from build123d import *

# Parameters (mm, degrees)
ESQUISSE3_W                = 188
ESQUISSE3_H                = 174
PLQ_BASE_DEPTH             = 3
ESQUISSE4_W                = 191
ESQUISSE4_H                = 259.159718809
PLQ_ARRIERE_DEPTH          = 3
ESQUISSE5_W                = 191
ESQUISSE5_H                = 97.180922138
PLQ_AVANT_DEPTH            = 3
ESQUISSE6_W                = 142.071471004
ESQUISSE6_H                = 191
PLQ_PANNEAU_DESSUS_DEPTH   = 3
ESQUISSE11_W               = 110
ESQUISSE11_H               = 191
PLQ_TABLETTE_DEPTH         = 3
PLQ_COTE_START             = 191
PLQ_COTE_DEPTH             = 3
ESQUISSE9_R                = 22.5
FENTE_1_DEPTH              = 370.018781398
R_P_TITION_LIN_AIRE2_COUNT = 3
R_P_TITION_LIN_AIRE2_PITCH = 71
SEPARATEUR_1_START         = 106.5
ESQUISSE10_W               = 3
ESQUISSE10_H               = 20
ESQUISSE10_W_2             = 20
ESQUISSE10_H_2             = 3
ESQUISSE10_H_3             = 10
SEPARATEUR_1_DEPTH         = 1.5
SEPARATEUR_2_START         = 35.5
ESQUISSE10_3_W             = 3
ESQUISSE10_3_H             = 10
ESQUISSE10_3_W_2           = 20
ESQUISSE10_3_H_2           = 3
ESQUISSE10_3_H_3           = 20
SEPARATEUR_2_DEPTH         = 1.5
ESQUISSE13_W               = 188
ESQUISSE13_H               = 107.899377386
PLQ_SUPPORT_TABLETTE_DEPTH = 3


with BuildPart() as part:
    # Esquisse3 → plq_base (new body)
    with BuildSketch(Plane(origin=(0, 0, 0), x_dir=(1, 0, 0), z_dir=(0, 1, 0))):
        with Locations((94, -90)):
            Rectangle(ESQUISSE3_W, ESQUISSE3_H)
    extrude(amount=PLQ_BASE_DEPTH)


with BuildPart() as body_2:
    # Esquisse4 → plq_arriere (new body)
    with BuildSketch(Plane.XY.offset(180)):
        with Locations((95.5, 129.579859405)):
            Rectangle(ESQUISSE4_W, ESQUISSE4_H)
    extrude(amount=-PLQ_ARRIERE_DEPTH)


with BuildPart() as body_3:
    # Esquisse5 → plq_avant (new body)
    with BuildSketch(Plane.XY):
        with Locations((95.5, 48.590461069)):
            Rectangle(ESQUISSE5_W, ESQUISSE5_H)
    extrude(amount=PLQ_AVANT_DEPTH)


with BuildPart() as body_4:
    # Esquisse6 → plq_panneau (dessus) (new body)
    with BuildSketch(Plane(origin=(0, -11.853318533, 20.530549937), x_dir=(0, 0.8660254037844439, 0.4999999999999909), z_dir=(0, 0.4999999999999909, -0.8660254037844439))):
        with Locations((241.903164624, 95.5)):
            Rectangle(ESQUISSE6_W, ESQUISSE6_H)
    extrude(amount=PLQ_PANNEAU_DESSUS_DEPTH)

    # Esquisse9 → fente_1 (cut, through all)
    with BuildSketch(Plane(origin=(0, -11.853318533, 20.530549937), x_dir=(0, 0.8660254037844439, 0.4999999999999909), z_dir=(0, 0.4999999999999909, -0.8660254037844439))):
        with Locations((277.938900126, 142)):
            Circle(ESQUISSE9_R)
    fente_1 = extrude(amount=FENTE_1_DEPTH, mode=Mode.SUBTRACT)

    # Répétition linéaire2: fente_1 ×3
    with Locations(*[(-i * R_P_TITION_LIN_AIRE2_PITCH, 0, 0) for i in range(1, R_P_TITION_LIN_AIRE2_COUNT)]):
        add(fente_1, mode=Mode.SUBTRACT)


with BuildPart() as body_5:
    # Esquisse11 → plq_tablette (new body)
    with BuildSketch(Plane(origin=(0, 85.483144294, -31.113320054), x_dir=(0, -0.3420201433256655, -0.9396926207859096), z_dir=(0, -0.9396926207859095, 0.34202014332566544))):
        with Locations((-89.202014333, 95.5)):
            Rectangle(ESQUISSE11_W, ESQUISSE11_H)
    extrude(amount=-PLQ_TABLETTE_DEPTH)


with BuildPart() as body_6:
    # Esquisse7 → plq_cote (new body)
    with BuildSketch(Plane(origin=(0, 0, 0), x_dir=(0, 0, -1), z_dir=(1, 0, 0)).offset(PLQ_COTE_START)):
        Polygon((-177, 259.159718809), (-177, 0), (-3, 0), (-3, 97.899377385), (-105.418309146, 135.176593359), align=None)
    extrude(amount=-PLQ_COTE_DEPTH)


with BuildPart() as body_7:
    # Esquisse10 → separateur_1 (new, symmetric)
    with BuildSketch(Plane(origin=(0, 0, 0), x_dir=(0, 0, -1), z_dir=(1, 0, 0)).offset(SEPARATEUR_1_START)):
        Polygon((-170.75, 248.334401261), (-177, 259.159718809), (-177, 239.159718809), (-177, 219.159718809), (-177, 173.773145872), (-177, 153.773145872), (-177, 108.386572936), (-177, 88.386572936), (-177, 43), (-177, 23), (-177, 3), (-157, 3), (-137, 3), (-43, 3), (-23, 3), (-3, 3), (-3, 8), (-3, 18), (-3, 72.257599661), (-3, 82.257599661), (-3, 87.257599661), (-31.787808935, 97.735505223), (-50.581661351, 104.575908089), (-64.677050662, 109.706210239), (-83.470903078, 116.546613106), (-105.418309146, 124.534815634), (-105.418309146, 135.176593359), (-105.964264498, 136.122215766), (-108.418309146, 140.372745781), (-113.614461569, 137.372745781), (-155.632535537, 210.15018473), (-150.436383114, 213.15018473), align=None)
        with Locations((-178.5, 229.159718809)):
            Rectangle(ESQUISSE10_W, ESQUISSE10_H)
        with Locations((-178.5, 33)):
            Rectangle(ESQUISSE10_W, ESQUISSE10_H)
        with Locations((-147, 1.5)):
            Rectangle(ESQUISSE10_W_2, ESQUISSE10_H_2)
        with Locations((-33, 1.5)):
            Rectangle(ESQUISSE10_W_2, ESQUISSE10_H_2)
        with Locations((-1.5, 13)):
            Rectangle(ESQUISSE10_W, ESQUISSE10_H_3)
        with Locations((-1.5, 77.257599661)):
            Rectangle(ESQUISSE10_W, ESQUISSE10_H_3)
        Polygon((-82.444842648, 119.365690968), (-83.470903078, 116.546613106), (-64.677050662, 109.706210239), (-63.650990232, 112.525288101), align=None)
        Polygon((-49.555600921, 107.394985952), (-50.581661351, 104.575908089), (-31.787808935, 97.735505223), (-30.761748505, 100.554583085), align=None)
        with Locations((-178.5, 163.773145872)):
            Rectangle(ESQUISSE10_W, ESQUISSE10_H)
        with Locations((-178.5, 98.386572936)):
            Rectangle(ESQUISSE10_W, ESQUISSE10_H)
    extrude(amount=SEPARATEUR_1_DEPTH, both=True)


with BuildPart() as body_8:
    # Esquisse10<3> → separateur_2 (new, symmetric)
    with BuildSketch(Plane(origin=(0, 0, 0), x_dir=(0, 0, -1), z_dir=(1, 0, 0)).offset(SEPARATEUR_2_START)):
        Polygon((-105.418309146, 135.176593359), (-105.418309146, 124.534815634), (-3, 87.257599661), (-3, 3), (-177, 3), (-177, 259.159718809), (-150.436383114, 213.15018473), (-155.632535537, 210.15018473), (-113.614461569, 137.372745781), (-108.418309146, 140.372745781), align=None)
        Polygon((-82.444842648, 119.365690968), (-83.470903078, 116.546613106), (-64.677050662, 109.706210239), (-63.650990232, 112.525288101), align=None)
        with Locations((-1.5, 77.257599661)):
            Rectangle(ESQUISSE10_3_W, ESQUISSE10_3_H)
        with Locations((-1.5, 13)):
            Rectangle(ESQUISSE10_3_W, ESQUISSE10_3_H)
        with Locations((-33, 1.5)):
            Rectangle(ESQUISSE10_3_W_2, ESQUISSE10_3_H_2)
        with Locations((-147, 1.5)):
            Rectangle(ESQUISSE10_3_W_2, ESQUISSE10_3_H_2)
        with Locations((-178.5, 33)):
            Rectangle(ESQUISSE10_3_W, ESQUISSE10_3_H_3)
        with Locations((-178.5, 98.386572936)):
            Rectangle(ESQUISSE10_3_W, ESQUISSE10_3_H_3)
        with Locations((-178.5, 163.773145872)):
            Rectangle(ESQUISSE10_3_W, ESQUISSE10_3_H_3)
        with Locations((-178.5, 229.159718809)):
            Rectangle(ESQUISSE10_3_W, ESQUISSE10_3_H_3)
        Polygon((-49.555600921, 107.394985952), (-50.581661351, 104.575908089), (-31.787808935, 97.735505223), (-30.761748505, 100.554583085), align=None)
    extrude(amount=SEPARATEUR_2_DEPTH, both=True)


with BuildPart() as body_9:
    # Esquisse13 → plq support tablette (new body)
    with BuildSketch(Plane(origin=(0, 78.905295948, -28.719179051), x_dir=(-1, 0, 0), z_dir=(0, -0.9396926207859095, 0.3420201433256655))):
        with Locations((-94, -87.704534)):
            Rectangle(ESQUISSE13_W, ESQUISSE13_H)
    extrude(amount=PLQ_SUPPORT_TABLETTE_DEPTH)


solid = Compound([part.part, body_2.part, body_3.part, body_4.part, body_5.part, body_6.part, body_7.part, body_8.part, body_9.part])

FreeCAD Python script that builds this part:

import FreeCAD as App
import Part
import Sketcher

V = App.Vector
Q = App.Units.Quantity


def add_polygon(sketch, points):
    """Adds a closed chain of lines whose ends are joined by coincident constraints."""
    first, n = sketch.GeometryCount, len(points)
    for a, b in zip(points, points[1:] + points[:1]):
        sketch.addGeometry(Part.LineSegment(App.Vector(*a, 0), App.Vector(*b, 0)), False)
    for i in range(n):
        sketch.addConstraint(Sketcher.Constraint("Coincident", first + i, 2, first + (i + 1) % n, 1))

doc = App.newDocument("Part")
body = doc.addObject("PartDesign::Body", "Body")

sketch1 = body.newObject("Sketcher::SketchObject", "Sketch")
sketch1.AttachmentSupport = (doc.getObject("XZ_Plane"), [""])
sketch1.MapMode = "FlatFace"
add_polygon(sketch1, [(0, 3), (0, 177), (188, 177), (188, 3)])
sketch1.addConstraint([
    Sketcher.Constraint("Vertical", 0),
    Sketcher.Constraint("Horizontal", 1),
    Sketcher.Constraint("Vertical", 2),
    Sketcher.Constraint("Horizontal", 3),
    Sketcher.Constraint("PointOnObject", 0, 2, -2),
    Sketcher.Constraint("DistanceX", 1, 1, 1, 2, 188.0),
    Sketcher.Constraint("DistanceY", 0, 1, 0, 2, 174.0),
    Sketcher.Constraint("DistanceY", -1, 1, 0, 2, 177.0),
])
pad1 = body.newObject("PartDesign::Pad", "Pad")
pad1.Profile = sketch1
pad1.Length = 3
pad1.Reversed = True
body2 = doc.addObject("PartDesign::Body", "Body001")

sketch2 = body2.newObject("Sketcher::SketchObject", "Sketch001")
sketch2.AttachmentSupport = (doc.getObject("XY_Plane001"), [""])
sketch2.MapMode = "FlatFace"
sketch2.AttachmentOffset = App.Placement(V(0, 0, 180), App.Rotation())
add_polygon(sketch2, [(0, 259.159719), (0, 0), (191, 0), (191, 259.159719)])
sketch2.addConstraint([
    Sketcher.Constraint("Vertical", 0),
    Sketcher.Constraint("Horizontal", 1),
    Sketcher.Constraint("Vertical", 2),
    Sketcher.Constraint("Horizontal", 3),
    Sketcher.Constraint("Coincident", 0, 2, -1, 1),
    Sketcher.Constraint("DistanceX", 1, 1, 1, 2, 191.0),
    Sketcher.Constraint("DistanceY", 0, 2, 0, 1, 259.159719),
])
pad2 = body2.newObject("PartDesign::Pad", "Pad001")
pad2.Profile = sketch2
pad2.Length = 3
pad2.Reversed = True
body3 = doc.addObject("PartDesign::Body", "Body002")

sketch3 = body3.newObject("Sketcher::SketchObject", "Sketch002")
sketch3.AttachmentSupport = (doc.getObject("XY_Plane002"), [""])
sketch3.MapMode = "FlatFace"
add_polygon(sketch3, [(0, 97.180922), (0, 0), (191, 0), (191, 97.180922)])
sketch3.addConstraint([
    Sketcher.Constraint("Vertical", 0),
    Sketcher.Constraint("Horizontal", 1),
    Sketcher.Constraint("Vertical", 2),
    Sketcher.Constraint("Horizontal", 3),
    Sketcher.Constraint("Coincident", 0, 2, -1, 1),
    Sketcher.Constraint("DistanceX", 1, 1, 1, 2, 191.0),
    Sketcher.Constraint("DistanceY", 0, 2, 0, 1, 97.180922),
])
pad3 = body3.newObject("PartDesign::Pad", "Pad002")
pad3.Profile = sketch3
pad3.Length = 3
body4 = doc.addObject("PartDesign::Body", "Body003")

sketch4 = body4.newObject("Sketcher::SketchObject", "Sketch003")
sketch4.Placement = App.Placement(V(0, -11.853319, 20.53055), App.Rotation(V(0, 0.866025404, 0.5), V(1, 0, 0), V(0, 0.5, -0.866025404), "ZXY"))
add_polygon(sketch4, [(170.867429, 191), (170.867429, 0), (312.9389, 0), (312.9389, 191)])
sketch4.addConstraint([
    Sketcher.Constraint("Vertical", 0),
    Sketcher.Constraint("Horizontal", 1),
    Sketcher.Constraint("Vertical", 2),
    Sketcher.Constraint("Horizontal", 3),
    Sketcher.Constraint("PointOnObject", 0, 2, -1),
    Sketcher.Constraint("DistanceY", 0, 2, 0, 1, 191.0),
    Sketcher.Constraint("DistanceX", 1, 1, 1, 2, 142.071471),
    Sketcher.Constraint("DistanceX", -1, 1, 1, 2, 312.9389),
])
pad4 = body4.newObject("PartDesign::Pad", "Pad003")
pad4.Profile = sketch4
pad4.Length = 3

sketch5 = body4.newObject("Sketcher::SketchObject", "Sketch004")
sketch5.Placement = App.Placement(V(0, -11.853319, 20.53055), App.Rotation(V(0, 0.866025404, 0.5), V(1, 0, 0), V(0, 0.5, -0.866025404), "ZXY"))
sketch5.addGeometry(Part.Circle(V(277.9389, 142, 0), V(0, 0, 1), 22.5), False)
sketch5.addConstraint([
    Sketcher.Constraint("Diameter", 0, 45.0),
    Sketcher.Constraint("DistanceY", -1, 1, 0, 3, 142.0),
    Sketcher.Constraint("DistanceX", -1, 1, 0, 3, 277.9389),
])
pocket1 = body4.newObject("PartDesign::Pocket", "Pocket")
pocket1.Profile = sketch5
pocket1.Type = "ThroughAll"
pocket1.Reversed = True
doc.recompute()

linearpattern = body4.newObject("PartDesign::LinearPattern", "LinearPattern")
linearpattern.Originals = [pocket1]
linearpattern.Direction = (doc.getObject("X_Axis003"), [""])
linearpattern.Mode = "offset"
linearpattern.Offset = 71
linearpattern.Occurrences = 3
linearpattern.Reversed = True
body4.Tip = linearpattern
body5 = doc.addObject("PartDesign::Body", "Body004")

sketch6 = body5.newObject("Sketcher::SketchObject", "Sketch005")
sketch6.Placement = App.Placement(V(0, 85.483144, -31.11332), App.Rotation(V(0, -0.342020143, -0.939692621), V(1, 0, 0), V(0, -0.939692621, 0.342020143), "ZXY"))
add_polygon(sketch6, [(-144.202014, 191), (-144.202014, 0), (-34.202014, 0), (-34.202014, 191)])
sketch6.addConstraint([
    Sketcher.Constraint("Vertical", 0),
    Sketcher.Constraint("Horizontal", 1),
    Sketcher.Constraint("Vertical", 2),
    Sketcher.Constraint("Horizontal", 3),
    Sketcher.Constraint("PointOnObject", 0, 2, -1),
    Sketcher.Constraint("DistanceX", 1, 1, 1, 2, 110.0),
    Sketcher.Constraint("DistanceY", 0, 2, 0, 1, 191.0),
    Sketcher.Constraint("DistanceX", 0, 2, -1, 1, 144.202014),
])
pad5 = body5.newObject("PartDesign::Pad", "Pad004")
pad5.Profile = sketch6
pad5.Length = 3
pad5.Reversed = True
body6 = doc.addObject("PartDesign::Body", "Body005")

sketch7 = body6.newObject("Sketcher::SketchObject", "Sketch006")
sketch7.AttachmentSupport = (doc.getObject("YZ_Plane005"), [""])
sketch7.MapMode = "FlatFace"
sketch7.AttachmentOffset = App.Placement(V(0, 0, 191), App.Rotation())
add_polygon(sketch7, [(259.159719, 177), (0, 177), (0, 3), (97.899377, 3), (135.176593, 105.418309)])
sketch7.addConstraint([
    Sketcher.Constraint("Horizontal", 0),
    Sketcher.Constraint("Vertical", 1),
    Sketcher.Constraint("Horizontal", 2),
    Sketcher.Constraint("PointOnObject", 0, 2, -2),
    Sketcher.Constraint("DistanceY", 1, 2, 1, 1, 174.0),
    Sketcher.Constraint("Angle", 3, Q("70 deg")),
    Sketcher.Constraint("Angle", 4, Q("30 deg")),
    Sketcher.Constraint("DistanceY", -1, 1, 0, 2, 177.0),
    Sketcher.Constraint("DistanceX", 0, 2, 0, 1, 259.159719),
    Sketcher.Constraint("Distance", 3, 108.991288),
])
pad6 = body6.newObject("PartDesign::Pad", "Pad005")
pad6.Profile = sketch7
pad6.Length = 3
pad6.Reversed = True
body7 = doc.addObject("PartDesign::Body", "Body006")

sketch8 = body7.newObject("Sketcher::SketchObject", "Sketch007")
sketch8.AttachmentSupport = (doc.getObject("YZ_Plane006"), [""])
sketch8.MapMode = "FlatFace"
sketch8.AttachmentOffset = App.Placement(V(0, 0, 106.5), App.Rotation())
add_polygon(sketch8, [(248.334401, 170.75), (259.159719, 177), (239.159719, 177), (239.159719, 180), (219.159719, 180), (219.159719, 177), (173.773146, 177), (173.773146, 180), (153.773146, 180), (153.773146, 177), (108.386573, 177), (108.386573, 180), (88.386573, 180), (88.386573, 177), (43, 177), (43, 180), (23, 180), (23, 177), (3, 177), (3, 157), (0, 157), (0, 137), (3, 137), (3, 43), (0, 43), (0, 23), (3, 23), (3, 3), (8, 3), (8, 0), (18, 0), (18, 3), (72.2576, 3), (72.2576, 0), (82.2576, 0), (82.2576, 3), (87.2576, 3), (97.735505, 31.787809), (100.554583, 30.761749), (107.394986, 49.555601), (104.575908, 50.581661), (109.70621, 64.677051), (112.525288, 63.65099), (119.365691, 82.444843), (116.546613, 83.470903), (124.534816, 105.418309), (135.176593, 105.418309), (136.122216, 105.964264), (140.372746, 108.418309), (137.372746, 113.614462), (210.150185, 155.632536), (213.150185, 150.436383)])
sketch8.addConstraint([
    Sketcher.Constraint("Horizontal", 1),
    Sketcher.Constraint("Vertical", 2),
    Sketcher.Constraint("Horizontal", 3),
    Sketcher.Constraint("Vertical", 4),
    Sketcher.Constraint("Horizontal", 5),
    Sketcher.Constraint("Vertical", 6),
    Sketcher.Constraint("Horizontal", 7),
    Sketcher.Constraint("Vertical", 8),
    Sketcher.Constraint("Horizontal", 9),
    Sketcher.Constraint("Vertical", 10),
    Sketcher.Constraint("Horizontal", 11),
    Sketcher.Constraint("Vertical", 12),
    Sketcher.Constraint("Horizontal", 13),
    Sketcher.Constraint("Vertical", 14),
    Sketcher.Constraint("Horizontal", 15),
    Sketcher.Constraint("Vertical", 16),
    Sketcher.Constraint("Horizontal", 17),
    Sketcher.Constraint("Vertical", 18),
    Sketcher.Constraint("Horizontal", 19),
    Sketcher.Constraint("Vertical", 20),
    Sketcher.Constraint("Horizontal", 21),
    Sketcher.Constraint("Vertical", 22),
    Sketcher.Constraint("Horizontal", 23),
    Sketcher.Constraint("Vertical", 24),
    Sketcher.Constraint("Horizontal", 25),
    Sketcher.Constraint("Vertical", 26),
    Sketcher.Constraint("Horizontal", 27),
    Sketcher.Constraint("Vertical", 28),
    Sketcher.Constraint("Horizontal", 29),
    Sketcher.Constraint("Vertical", 30),
    Sketcher.Constraint("Horizontal", 31),
    Sketcher.Constraint("Vertical", 32),
    Sketcher.Constraint("Horizontal", 33),
    Sketcher.Constraint("Vertical", 34),
    Sketcher.Constraint("Horizontal", 35),
    Sketcher.Constraint("Horizontal", 45),
    Sketcher.Constraint("PointOnObject", 19, 2, -2),
    Sketcher.Constraint("PointOnObject", 23, 2, -2),
    Sketcher.Constraint("PointOnObject", 28, 2, -1),
    Sketcher.Constraint("PointOnObject", 32, 2, -1),
    Sketcher.Constraint("Perpendicular", 36, 37),
    Sketcher.Constraint("Perpendicular", 37, 38),
    Sketcher.Constraint("Perpendicular", 38, 39),
    Sketcher.Constraint("Perpendicular", 39, 40),
    Sketcher.Constraint("Perpendicular", 40, 41),
    Sketcher.Constraint("Perpendicular", 41, 42),
    Sketcher.Constraint("Perpendicular", 42, 43),
    Sketcher.Constraint("Perpendicular", 43, 44),
    Sketcher.Constraint("Parallel", 0, 46),
    Sketcher.Constraint("Parallel", 46, 47),
    Sketcher.Constraint("Perpendicular", 47, 48),
    Sketcher.Constraint("Perpendicular", 48, 49),
    Sketcher.Constraint("Perpendicular", 49, 50),
    Sketcher.Constraint("Perpendicular", 50, 51),
    Sketcher.Constraint("Horizontal", 1, 2, 4, 2),
    Sketcher.Constraint("Horizontal", 3, 2, 6, 2),
    Sketcher.Constraint("Horizontal", 5, 2, 8, 2),
    Sketcher.Constraint("Horizontal", 7, 2, 10, 2),
    Sketcher.Constraint("Horizontal", 9, 2, 12, 2),
    Sketcher.Constraint("Horizontal", 11, 2, 14, 2),
    Sketcher.Constraint("Horizontal", 13, 2, 16, 2),
    Sketcher.Constraint("Horizontal", 27, 2, 30, 2),
    Sketcher.Constraint("Horizontal", 31, 2, 34, 2),
    Sketcher.Constraint("Vertical", 18, 2, 21, 2),
    Sketcher.Constraint("Vertical", 22, 2, 25, 2),
    Sketcher.Constraint("Equal", 1, 3),
    Sketcher.Constraint("Equal", 3, 7),
    Sketcher.Constraint("Equal", 5, 9),
    Sketcher.Constraint("Equal", 7, 11),
    Sketcher.Constraint("Equal", 9, 13),
    Sketcher.Constraint("Equal", 11, 15),
    Sketcher.Constraint("Equal", 15, 17),
    Sketcher.Constraint("Equal", 29, 33),
    Sketcher.Constraint("Equal", 27, 35),
    Sketcher.Constraint("Equal", 25, 2),
    Sketcher.Constraint("Equal", 17, 18),
    Sketcher.Constraint("Equal", 18, 20),
    Sketcher.Constraint("Equal", 20, 24),
    Sketcher.Constraint("Equal", 24, 26),
    Sketcher.Constraint("Equal", 16, 28),
    Sketcher.Constraint("Equal", 37, 39),
    Sketcher.Constraint("Equal", 39, 41),
    Sketcher.Constraint("Equal", 38, 42),
    Sketcher.Constraint("Equal", 41, 43),
    Sketcher.Constraint("Equal", 48, 50),
    Sketcher.Constraint("DistanceX", 1, 2, 1, 1, 20.0),
    Sketcher.Constraint("DistanceX", 19, 2, 19, 1, 3.0),
    Sketcher.Constraint("DistanceX", 27, 1, 27, 2, 5.0),
    Sketcher.Constraint("DistanceX", 29, 1, 29, 2, 10.0),
    Sketcher.Constraint("DistanceY", 22, 2, 22, 1, 94.0),
    Sketcher.Constraint("Angle", 0, Q("30 deg")),
    Sketcher.Constraint("Angle", 36, Q("70 deg")),
    Sketcher.Constraint("Distance", 37, 3.0),
    Sketcher.Constraint("Distance", 38, 20.0),
    Sketcher.Constraint("Distance", 40, 15.0),
    Sketcher.Constraint("Distance", 48, 6.0),
    Sketcher.Constraint("DistanceY", 45, 2, 47, 2, 3.0),
    Sketcher.Constraint("Distance", 0, 12.5),
    Sketcher.Constraint("DistanceX", 31, 1, 31, 2, 54.2576),
    Sketcher.Constraint("DistanceY", -1, 1, 38, 2, 49.555601),
    Sketcher.Constraint("DistanceX", -1, 1, 51, 2, 248.334401),
    Sketcher.Constraint("DistanceX", 44, 2, 46, 2, 11.5874),
    Sketcher.Constraint("Distance", 44, 23.355942),
    Sketcher.Constraint("DistanceX", 5, 2, 49, 2, 36.377039),
])
pad7 = body7.newObject("PartDesign::Pad", "Pad006")
pad7.Profile = sketch8
pad7.Length = 3
pad7.Midplane = True
body8 = doc.addObject("PartDesign::Body", "Body007")

sketch9 = body8.newObject("Sketcher::SketchObject", "Sketch008")
sketch9.AttachmentSupport = (doc.getObject("YZ_Plane007"), [""])
sketch9.MapMode = "FlatFace"
sketch9.AttachmentOffset = App.Placement(V(0, 0, 35.5), App.Rotation())
add_polygon(sketch9, [(124.534816, 105.418309), (135.176593, 105.418309), (140.372746, 108.418309), (137.372746, 113.614462), (210.150185, 155.632536), (213.150185, 150.436383), (259.159719, 177), (239.159719, 177), (239.159719, 180), (219.159719, 180), (219.159719, 177), (173.773146, 177), (173.773146, 180), (153.773146, 180), (153.773146, 177), (108.386573, 177), (108.386573, 180), (88.386573, 180), (88.386573, 177), (43, 177), (43, 180), (23, 180), (23, 177), (3, 177), (3, 157), (0, 157), (0, 137), (3, 137), (3, 43), (0, 43), (0, 23), (3, 23), (3, 3), (8, 3), (8, 0), (18, 0), (18, 3), (72.2576, 3), (72.2576, 0), (82.2576, 0), (82.2576, 3), (87.2576, 3), (97.735505, 31.787809), (100.554583, 30.761749), (107.394986, 49.555601), (104.575908, 50.581661), (109.70621, 64.677051), (112.525288, 63.65099), (119.365691, 82.444843), (116.546613, 83.470903)])
sketch9.addConstraint([
    Sketcher.Constraint("Horizontal", 0),
    Sketcher.Constraint("Horizontal", 6),
    Sketcher.Constraint("Vertical", 7),
    Sketcher.Constraint("Horizontal", 8),
    Sketcher.Constraint("Vertical", 9),
    Sketcher.Constraint("Horizontal", 10),
    Sketcher.Constraint("Vertical", 11),
    Sketcher.Constraint("Horizontal", 12),
    Sketcher.Constraint("Vertical", 13),
    Sketcher.Constraint("Horizontal", 14),
    Sketcher.Constraint("Vertical", 15),
    Sketcher.Constraint("Horizontal", 16),
    Sketcher.Constraint("Vertical", 17),
    Sketcher.Constraint("Horizontal", 18),
    Sketcher.Constraint("Vertical", 19),
    Sketcher.Constraint("Horizontal", 20),
    Sketcher.Constraint("Vertical", 21),
    Sketcher.Constraint("Horizontal", 22),
    Sketcher.Constraint("Vertical", 23),
    Sketcher.Constraint("Horizontal", 24),
    Sketcher.Constraint("Vertical", 25),
    Sketcher.Constraint("Horizontal", 26),
    Sketcher.Constraint("Vertical", 27),
    Sketcher.Constraint("Horizontal", 28),
    Sketcher.Constraint("Vertical", 29),
    Sketcher.Constraint("Horizontal", 30),
    Sketcher.Constraint("Vertical", 31),
    Sketcher.Constraint("Horizontal", 32),
    Sketcher.Constraint("Vertical", 33),
    Sketcher.Constraint("Horizontal", 34),
    Sketcher.Constraint("Vertical", 35),
    Sketcher.Constraint("Horizontal", 36),
    Sketcher.Constraint("Vertical", 37),
    Sketcher.Constraint("Horizontal", 38),
    Sketcher.Constraint("Vertical", 39),
    Sketcher.Constraint("Horizontal", 40),
    Sketcher.Constraint("PointOnObject", 24, 2, -2),
    Sketcher.Constraint("PointOnObject", 28, 2, -2),
    Sketcher.Constraint("PointOnObject", 33, 2, -1),
    Sketcher.Constraint("PointOnObject", 37, 2, -1),
    Sketcher.Constraint("Perpendicular", 1, 2),
    Sketcher.Constraint("Perpendicular", 2, 3),
    Sketcher.Constraint("Perpendicular", 3, 4),
    Sketcher.Constraint("Perpendicular", 4, 5),
    Sketcher.Constraint("Perpendicular", 41, 42),
    Sketcher.Constraint("Perpendicular", 42, 43),
    Sketcher.Constraint("Perpendicular", 43, 44),
    Sketcher.Constraint("Perpendicular", 44, 45),
    Sketcher.Constraint("Perpendicular", 45, 46),
    Sketcher.Constraint("Perpendicular", 46, 47),
    Sketcher.Constraint("Perpendicular", 47, 48),
    Sketcher.Constraint("Perpendicular", 48, 49),
    Sketcher.Constraint("Horizontal", 6, 2, 9, 2),
    Sketcher.Constraint("Horizontal", 8, 2, 11, 2),
    Sketcher.Constraint("Horizontal", 10, 2, 13, 2),
    Sketcher.Constraint("Horizontal", 12, 2, 15, 2),
    Sketcher.Constraint("Horizontal", 14, 2, 17, 2),
    Sketcher.Constraint("Horizontal", 16, 2, 19, 2),
    Sketcher.Constraint("Horizontal", 18, 2, 21, 2),
    Sketcher.Constraint("Horizontal", 32, 2, 35, 2),
    Sketcher.Constraint("Horizontal", 36, 2, 39, 2),
    Sketcher.Constraint("Vertical", 23, 2, 26, 2),
    Sketcher.Constraint("Vertical", 27, 2, 30, 2),
    Sketcher.Constraint("Equal", 6, 8),
    Sketcher.Constraint("Equal", 8, 12),
    Sketcher.Constraint("Equal", 10, 14),
    Sketcher.Constraint("Equal", 12, 16),
    Sketcher.Constraint("Equal", 14, 18),
    Sketcher.Constraint("Equal", 16, 20),
    Sketcher.Constraint("Equal", 20, 22),
    Sketcher.Constraint("Equal", 34, 38),
    Sketcher.Constraint("Equal", 32, 40),
    Sketcher.Constraint("Equal", 30, 7),
    Sketcher.Constraint("Equal", 22, 23),
    Sketcher.Constraint("Equal", 23, 25),
    Sketcher.Constraint("Equal", 25, 29),
    Sketcher.Constraint("Equal", 29, 31),
    Sketcher.Constraint("Equal", 21, 33),
    Sketcher.Constraint("Equal", 1, 2),
    Sketcher.Constraint("Equal", 2, 4),
    Sketcher.Constraint("Equal", 42, 44),
    Sketcher.Constraint("Equal", 44, 46),
    Sketcher.Constraint("Equal", 43, 47),
    Sketcher.Constraint("Equal", 46, 48),
    Sketcher.Constraint("DistanceX", 6, 2, 6, 1, 20.0),
    Sketcher.Constraint("DistanceX", 24, 2, 24, 1, 3.0),
    Sketcher.Constraint("DistanceX", 32, 1, 32, 2, 5.0),
    Sketcher.Constraint("DistanceX", 34, 1, 34, 2, 10.0),
    Sketcher.Constraint("DistanceY", 27, 2, 27, 1, 94.0),
    Sketcher.Constraint("Angle", 1, Q("30 deg")),
    Sketcher.Constraint("Angle", 41, Q("70 deg")),
    Sketcher.Constraint("Distance", 1, 6.0),
    Sketcher.Constraint("Distance", 42, 3.0),
    Sketcher.Constraint("Distance", 43, 20.0),
    Sketcher.Constraint("Distance", 45, 15.0),
    Sketcher.Constraint("DistanceX", 36, 1, 36, 2, 54.2576),
    Sketcher.Constraint("DistanceY", -1, 1, 43, 2, 49.555601),
    Sketcher.Constraint("Distance", 49, 23.355942),
    Sketcher.Constraint("DistanceX", 0, 1, 0, 2, 10.641778),
    Sketcher.Constraint("DistanceX", 2, 2, 3, 2, 72.777439),
])
pad8 = body8.newObject("PartDesign::Pad", "Pad007")
pad8.Profile = sketch9
pad8.Length = 3
pad8.Midplane = True
body9 = doc.addObject("PartDesign::Body", "Body008")

sketch10 = body9.newObject("Sketcher::SketchObject", "Sketch009")
sketch10.Placement = App.Placement(V(0, 78.905296, -28.719179), App.Rotation(V(-1, 0, 0), V(0, -0.342020143, -0.939692621), V(0, -0.939692621, 0.342020143), "ZXY"))
add_polygon(sketch10, [(-188, -33.754845), (-188, -141.654223), (0, -141.654223), (0, -33.754845)])
sketch10.addConstraint([
    Sketcher.Constraint("Vertical", 0),
    Sketcher.Constraint("Horizontal", 1),
    Sketcher.Constraint("Vertical", 2),
    Sketcher.Constraint("Horizontal", 3),
    Sketcher.Constraint("PointOnObject", 1, 2, -2),
    Sketcher.Constraint("DistanceX", 1, 1, 1, 2, 188.0),
    Sketcher.Constraint("DistanceY", 0, 2, 0, 1, 107.899377),
    Sketcher.Constraint("DistanceY", 0, 2, -1, 1, 141.654223),
])
pad9 = body9.newObject("PartDesign::Pad", "Pad008")
pad9.Profile = sketch10
pad9.Length = 3

doc.recompute()
